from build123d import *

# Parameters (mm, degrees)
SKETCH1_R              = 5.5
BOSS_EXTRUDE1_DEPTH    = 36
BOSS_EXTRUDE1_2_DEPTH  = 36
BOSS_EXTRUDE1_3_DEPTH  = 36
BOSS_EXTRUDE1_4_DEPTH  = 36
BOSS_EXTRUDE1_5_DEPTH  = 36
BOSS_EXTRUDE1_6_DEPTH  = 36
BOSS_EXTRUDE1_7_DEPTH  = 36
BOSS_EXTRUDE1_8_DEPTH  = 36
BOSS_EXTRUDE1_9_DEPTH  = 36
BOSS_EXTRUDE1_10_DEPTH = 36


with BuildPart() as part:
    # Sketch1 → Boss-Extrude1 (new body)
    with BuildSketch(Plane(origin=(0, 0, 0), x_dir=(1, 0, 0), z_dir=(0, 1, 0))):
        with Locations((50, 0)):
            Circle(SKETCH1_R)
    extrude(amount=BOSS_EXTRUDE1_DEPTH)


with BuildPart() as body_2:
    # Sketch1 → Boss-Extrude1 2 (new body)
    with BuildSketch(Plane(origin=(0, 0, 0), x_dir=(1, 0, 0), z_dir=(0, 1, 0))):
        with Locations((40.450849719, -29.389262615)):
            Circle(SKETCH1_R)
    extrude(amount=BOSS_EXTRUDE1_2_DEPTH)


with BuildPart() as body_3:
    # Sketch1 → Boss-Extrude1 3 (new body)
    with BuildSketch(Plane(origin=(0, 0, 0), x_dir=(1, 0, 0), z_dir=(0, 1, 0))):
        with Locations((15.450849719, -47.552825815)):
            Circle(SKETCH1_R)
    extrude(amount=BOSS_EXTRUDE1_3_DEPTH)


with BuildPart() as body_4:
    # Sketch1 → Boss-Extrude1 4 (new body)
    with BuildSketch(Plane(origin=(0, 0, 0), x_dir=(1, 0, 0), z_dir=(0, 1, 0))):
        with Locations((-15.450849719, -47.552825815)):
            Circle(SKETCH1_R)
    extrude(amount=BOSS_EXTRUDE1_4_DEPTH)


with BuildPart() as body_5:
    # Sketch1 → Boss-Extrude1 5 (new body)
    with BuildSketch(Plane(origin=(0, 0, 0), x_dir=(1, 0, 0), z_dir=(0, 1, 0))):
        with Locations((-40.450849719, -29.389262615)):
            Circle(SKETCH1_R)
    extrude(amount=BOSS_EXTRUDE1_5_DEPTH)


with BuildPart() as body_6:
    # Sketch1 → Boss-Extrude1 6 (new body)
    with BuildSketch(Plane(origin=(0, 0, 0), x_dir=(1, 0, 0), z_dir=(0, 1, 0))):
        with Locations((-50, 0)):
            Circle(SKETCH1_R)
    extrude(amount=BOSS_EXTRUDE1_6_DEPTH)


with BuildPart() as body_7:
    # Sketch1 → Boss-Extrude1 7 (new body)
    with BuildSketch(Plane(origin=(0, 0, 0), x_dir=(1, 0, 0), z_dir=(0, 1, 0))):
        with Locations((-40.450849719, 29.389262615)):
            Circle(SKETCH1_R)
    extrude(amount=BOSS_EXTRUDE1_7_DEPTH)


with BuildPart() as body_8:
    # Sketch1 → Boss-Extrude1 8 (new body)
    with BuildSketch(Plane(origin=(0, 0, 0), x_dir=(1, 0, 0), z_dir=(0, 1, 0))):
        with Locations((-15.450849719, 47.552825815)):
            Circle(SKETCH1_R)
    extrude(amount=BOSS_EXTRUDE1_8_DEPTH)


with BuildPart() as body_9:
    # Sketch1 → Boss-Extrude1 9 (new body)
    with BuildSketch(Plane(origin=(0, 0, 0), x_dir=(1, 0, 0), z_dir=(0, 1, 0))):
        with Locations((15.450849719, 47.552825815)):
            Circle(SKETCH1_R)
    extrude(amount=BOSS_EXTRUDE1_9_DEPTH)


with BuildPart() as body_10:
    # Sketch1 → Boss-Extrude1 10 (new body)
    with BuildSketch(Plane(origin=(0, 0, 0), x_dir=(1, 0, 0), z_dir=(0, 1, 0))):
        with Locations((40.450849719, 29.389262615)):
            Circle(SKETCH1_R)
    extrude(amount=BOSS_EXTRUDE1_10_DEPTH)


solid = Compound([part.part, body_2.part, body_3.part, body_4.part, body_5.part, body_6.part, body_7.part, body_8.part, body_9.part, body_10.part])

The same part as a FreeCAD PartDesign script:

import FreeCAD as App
import Part
import Sketcher
from FreeCAD import Vector

doc = App.newDocument("Part")
params = doc.addObject("Spreadsheet::Sheet", "Params")
for row, (alias, value) in enumerate([
    ("sketch1_diameter", "11 mm"),
    ("pad1_length", "36 mm"),
    ("sketch2_diameter", "11 mm"),
    ("pad2_length", "36 mm"),
    ("sketch3_diameter", "11 mm"),
    ("pad3_length", "36 mm"),
    ("sketch4_diameter", "11 mm"),
    ("pad4_length", "36 mm"),
    ("sketch5_diameter", "11 mm"),
    ("pad5_length", "36 mm"),
    ("sketch6_diameter", "11 mm"),
    ("pad6_length", "36 mm"),
    ("sketch7_diameter", "11 mm"),
    ("pad7_length", "36 mm"),
    ("sketch8_diameter", "11 mm"),
    ("pad8_length", "36 mm"),
    ("sketch9_diameter", "11 mm"),
    ("pad9_length", "36 mm"),
    ("sketch10_diameter", "11 mm"),
    ("pad10_length", "36 mm"),
], start=1):
    params.set(f"A{row}", alias)
    params.set(f"B{row}", "=" + value)
    params.setAlias(f"B{row}", alias)

body = doc.addObject("PartDesign::Body", "Body")

# Sketch on XZ plane
sketch1 = body.newObject("Sketcher::SketchObject", "Sketch")
sketch1.AttachmentSupport = (doc.getObject("XZ_Plane"), [""])
sketch1.MapMode = "FlatFace"
sketch1.addGeometry(Part.Circle(Vector(50, 0, 0), Vector(0, 0, 1), 6), False)
sketch1.addConstraint([
    Sketcher.Constraint("PointOnObject", 0, 3, -1),
    Sketcher.Constraint("Diameter", 0, 11.0),
    Sketcher.Constraint("DistanceX", -1, 1, 0, 3, 50.0),
])
sketch1.setExpression("Constraints[1]", "Params.sketch1_diameter")
pad1 = body.newObject("PartDesign::Pad", "Pad")
pad1.Profile = sketch1
pad1.setExpression("Length", "Params.pad1_length")
pad1.Reversed = True
body2 = doc.addObject("PartDesign::Body", "Body001")

# Sketch on XZ plane
sketch2 = body2.newObject("Sketcher::SketchObject", "Sketch001")
sketch2.AttachmentSupport = (doc.getObject("XZ_Plane001"), [""])
sketch2.MapMode = "FlatFace"
sketch2.addGeometry(Part.Circle(Vector(40, 29, 0), Vector(0, 0, 1), 6), False)
sketch2.addConstraint([
    Sketcher.Constraint("Diameter", 0, 11.0),
    Sketcher.Constraint("DistanceX", -1, 1, 0, 3, 40.45085),
    Sketcher.Constraint("DistanceY", -1, 1, 0, 3, 29.389263),
])
sketch2.setExpression("Constraints[0]", "Params.sketch2_diameter")
pad2 = body2.newObject("PartDesign::Pad", "Pad001")
pad2.Profile = sketch2
pad2.setExpression("Length", "Params.pad2_length")
pad2.Reversed = True
body3 = doc.addObject("PartDesign::Body", "Body002")

# Sketch on XZ plane
sketch3 = body3.newObject("Sketcher::SketchObject", "Sketch002")
sketch3.AttachmentSupport = (doc.getObject("XZ_Plane002"), [""])
sketch3.MapMode = "FlatFace"
sketch3.addGeometry(Part.Circle(Vector(15, 48, 0), Vector(0, 0, 1), 6), False)
sketch3.addConstraint([
    Sketcher.Constraint("Diameter", 0, 11.0),
    Sketcher.Constraint("DistanceX", -1, 1, 0, 3, 15.45085),
    Sketcher.Constraint("DistanceY", -1, 1, 0, 3, 47.552826),
])
sketch3.setExpression("Constraints[0]", "Params.sketch3_diameter")
pad3 = body3.newObject("PartDesign::Pad", "Pad002")
pad3.Profile = sketch3
pad3.setExpression("Length", "Params.pad3_length")
pad3.Reversed = True
body4 = doc.addObject("PartDesign::Body", "Body003")

# Sketch on XZ plane
sketch4 = body4.newObject("Sketcher::SketchObject", "Sketch003")
sketch4.AttachmentSupport = (doc.getObject("XZ_Plane003"), [""])
sketch4.MapMode = "FlatFace"
sketch4.addGeometry(Part.Circle(Vector(-15, 48, 0), Vector(0, 0, 1), 6), False)
sketch4.addConstraint([
    Sketcher.Constraint("Diameter", 0, 11.0),
    Sketcher.Constraint("DistanceX", 0, 3, -1, 1, 15.45085),
    Sketcher.Constraint("DistanceY", -1, 1, 0, 3, 47.552826),
])
sketch4.setExpression("Constraints[0]", "Params.sketch4_diameter")
pad4 = body4.newObject("PartDesign::Pad", "Pad003")
pad4.Profile = sketch4
pad4.setExpression("Length", "Params.pad4_length")
pad4.Reversed = True
body5 = doc.addObject("PartDesign::Body", "Body004")

# Sketch on XZ plane
sketch5 = body5.newObject("Sketcher::SketchObject", "Sketch004")
sketch5.AttachmentSupport = (doc.getObject("XZ_Plane004"), [""])
sketch5.MapMode = "FlatFace"
sketch5.addGeometry(Part.Circle(Vector(-40, 29, 0), Vector(0, 0, 1), 6), False)
sketch5.addConstraint([
    Sketcher.Constraint("Diameter", 0, 11.0),
    Sketcher.Constraint("DistanceX", 0, 3, -1, 1, 40.45085),
    Sketcher.Constraint("DistanceY", -1, 1, 0, 3, 29.389263),
])
sketch5.setExpression("Constraints[0]", "Params.sketch5_diameter")
pad5 = body5.newObject("PartDesign::Pad", "Pad004")
pad5.Profile = sketch5
pad5.setExpression("Length", "Params.pad5_length")
pad5.Reversed = True
body6 = doc.addObject("PartDesign::Body", "Body005")

# Sketch on XZ plane
sketch6 = body6.newObject("Sketcher::SketchObject", "Sketch005")
sketch6.AttachmentSupport = (doc.getObject("XZ_Plane005"), [""])
sketch6.MapMode = "FlatFace"
sketch6.addGeometry(Part.Circle(Vector(-50, 0, 0), Vector(0, 0, 1), 6), False)
sketch6.addConstraint([
    Sketcher.Constraint("PointOnObject", 0, 3, -1),
    Sketcher.Constraint("Diameter", 0, 11.0),
    Sketcher.Constraint("DistanceX", 0, 3, -1, 1, 50.0),
])
sketch6.setExpression("Constraints[1]", "Params.sketch6_diameter")
pad6 = body6.newObject("PartDesign::Pad", "Pad005")
pad6.Profile = sketch6
pad6.setExpression("Length", "Params.pad6_length")
pad6.Reversed = True
body7 = doc.addObject("PartDesign::Body", "Body006")

# Sketch on XZ plane
sketch7 = body7.newObject("Sketcher::SketchObject", "Sketch006")
sketch7.AttachmentSupport = (doc.getObject("XZ_Plane006"), [""])
sketch7.MapMode = "FlatFace"
sketch7.addGeometry(Part.Circle(Vector(-40, -29, 0), Vector(0, 0, 1), 6), False)
sketch7.addConstraint([
    Sketcher.Constraint("Diameter", 0, 11.0),
    Sketcher.Constraint("DistanceX", 0, 3, -1, 1, 40.45085),
    Sketcher.Constraint("DistanceY", 0, 3, -1, 1, 29.389263),
])
sketch7.setExpression("Constraints[0]", "Params.sketch7_diameter")
pad7 = body7.newObject("PartDesign::Pad", "Pad006")
pad7.Profile = sketch7
pad7.setExpression("Length", "Params.pad7_length")
pad7.Reversed = True
body8 = doc.addObject("PartDesign::Body", "Body007")

# Sketch on XZ plane
sketch8 = body8.newObject("Sketcher::SketchObject", "Sketch007")
sketch8.AttachmentSupport = (doc.getObject("XZ_Plane007"), [""])
sketch8.MapMode = "FlatFace"
sketch8.addGeometry(Part.Circle(Vector(-15, -48, 0), Vector(0, 0, 1), 6), False)
sketch8.addConstraint([
    Sketcher.Constraint("Diameter", 0, 11.0),
    Sketcher.Constraint("DistanceX", 0, 3, -1, 1, 15.45085),
    Sketcher.Constraint("DistanceY", 0, 3, -1, 1, 47.552826),
])
sketch8.setExpression("Constraints[0]", "Params.sketch8_diameter")
pad8 = body8.newObject("PartDesign::Pad", "Pad007")
pad8.Profile = sketch8
pad8.setExpression("Length", "Params.pad8_length")
pad8.Reversed = True
body9 = doc.addObject("PartDesign::Body", "Body008")

# Sketch on XZ plane
sketch9 = body9.newObject("Sketcher::SketchObject", "Sketch008")
sketch9.AttachmentSupport = (doc.getObject("XZ_Plane008"), [""])
sketch9.MapMode = "FlatFace"
sketch9.addGeometry(Part.Circle(Vector(15, -48, 0), Vector(0, 0, 1), 6), False)
sketch9.addConstraint([
    Sketcher.Constraint("Diameter", 0, 11.0),
    Sketcher.Constraint("DistanceX", -1, 1, 0, 3, 15.45085),
    Sketcher.Constraint("DistanceY", 0, 3, -1, 1, 47.552826),
])
sketch9.setExpression("Constraints[0]", "Params.sketch9_diameter")
pad9 = body9.newObject("PartDesign::Pad", "Pad008")
pad9.Profile = sketch9
pad9.setExpression("Length", "Params.pad9_length")
pad9.Reversed = True
body10 = doc.addObject("PartDesign::Body", "Body009")

# Sketch on XZ plane
sketch10 = body10.newObject("Sketcher::SketchObject", "Sketch009")
sketch10.AttachmentSupport = (doc.getObject("XZ_Plane009"), [""])
sketch10.MapMode = "FlatFace"
sketch10.addGeometry(Part.Circle(Vector(40, -29, 0), Vector(0, 0, 1), 6), False)
sketch10.addConstraint([
    Sketcher.Constraint("Diameter", 0, 11.0),
    Sketcher.Constraint("DistanceX", -1, 1, 0, 3, 40.45085),
    Sketcher.Constraint("DistanceY", 0, 3, -1, 1, 29.389263),
])
sketch10.setExpression("Constraints[0]", "Params.sketch10_diameter")
pad10 = body10.newObject("PartDesign::Pad", "Pad009")
pad10.Profile = sketch10
pad10.setExpression("Length", "Params.pad10_length")
pad10.Reversed = True

doc.recompute()
